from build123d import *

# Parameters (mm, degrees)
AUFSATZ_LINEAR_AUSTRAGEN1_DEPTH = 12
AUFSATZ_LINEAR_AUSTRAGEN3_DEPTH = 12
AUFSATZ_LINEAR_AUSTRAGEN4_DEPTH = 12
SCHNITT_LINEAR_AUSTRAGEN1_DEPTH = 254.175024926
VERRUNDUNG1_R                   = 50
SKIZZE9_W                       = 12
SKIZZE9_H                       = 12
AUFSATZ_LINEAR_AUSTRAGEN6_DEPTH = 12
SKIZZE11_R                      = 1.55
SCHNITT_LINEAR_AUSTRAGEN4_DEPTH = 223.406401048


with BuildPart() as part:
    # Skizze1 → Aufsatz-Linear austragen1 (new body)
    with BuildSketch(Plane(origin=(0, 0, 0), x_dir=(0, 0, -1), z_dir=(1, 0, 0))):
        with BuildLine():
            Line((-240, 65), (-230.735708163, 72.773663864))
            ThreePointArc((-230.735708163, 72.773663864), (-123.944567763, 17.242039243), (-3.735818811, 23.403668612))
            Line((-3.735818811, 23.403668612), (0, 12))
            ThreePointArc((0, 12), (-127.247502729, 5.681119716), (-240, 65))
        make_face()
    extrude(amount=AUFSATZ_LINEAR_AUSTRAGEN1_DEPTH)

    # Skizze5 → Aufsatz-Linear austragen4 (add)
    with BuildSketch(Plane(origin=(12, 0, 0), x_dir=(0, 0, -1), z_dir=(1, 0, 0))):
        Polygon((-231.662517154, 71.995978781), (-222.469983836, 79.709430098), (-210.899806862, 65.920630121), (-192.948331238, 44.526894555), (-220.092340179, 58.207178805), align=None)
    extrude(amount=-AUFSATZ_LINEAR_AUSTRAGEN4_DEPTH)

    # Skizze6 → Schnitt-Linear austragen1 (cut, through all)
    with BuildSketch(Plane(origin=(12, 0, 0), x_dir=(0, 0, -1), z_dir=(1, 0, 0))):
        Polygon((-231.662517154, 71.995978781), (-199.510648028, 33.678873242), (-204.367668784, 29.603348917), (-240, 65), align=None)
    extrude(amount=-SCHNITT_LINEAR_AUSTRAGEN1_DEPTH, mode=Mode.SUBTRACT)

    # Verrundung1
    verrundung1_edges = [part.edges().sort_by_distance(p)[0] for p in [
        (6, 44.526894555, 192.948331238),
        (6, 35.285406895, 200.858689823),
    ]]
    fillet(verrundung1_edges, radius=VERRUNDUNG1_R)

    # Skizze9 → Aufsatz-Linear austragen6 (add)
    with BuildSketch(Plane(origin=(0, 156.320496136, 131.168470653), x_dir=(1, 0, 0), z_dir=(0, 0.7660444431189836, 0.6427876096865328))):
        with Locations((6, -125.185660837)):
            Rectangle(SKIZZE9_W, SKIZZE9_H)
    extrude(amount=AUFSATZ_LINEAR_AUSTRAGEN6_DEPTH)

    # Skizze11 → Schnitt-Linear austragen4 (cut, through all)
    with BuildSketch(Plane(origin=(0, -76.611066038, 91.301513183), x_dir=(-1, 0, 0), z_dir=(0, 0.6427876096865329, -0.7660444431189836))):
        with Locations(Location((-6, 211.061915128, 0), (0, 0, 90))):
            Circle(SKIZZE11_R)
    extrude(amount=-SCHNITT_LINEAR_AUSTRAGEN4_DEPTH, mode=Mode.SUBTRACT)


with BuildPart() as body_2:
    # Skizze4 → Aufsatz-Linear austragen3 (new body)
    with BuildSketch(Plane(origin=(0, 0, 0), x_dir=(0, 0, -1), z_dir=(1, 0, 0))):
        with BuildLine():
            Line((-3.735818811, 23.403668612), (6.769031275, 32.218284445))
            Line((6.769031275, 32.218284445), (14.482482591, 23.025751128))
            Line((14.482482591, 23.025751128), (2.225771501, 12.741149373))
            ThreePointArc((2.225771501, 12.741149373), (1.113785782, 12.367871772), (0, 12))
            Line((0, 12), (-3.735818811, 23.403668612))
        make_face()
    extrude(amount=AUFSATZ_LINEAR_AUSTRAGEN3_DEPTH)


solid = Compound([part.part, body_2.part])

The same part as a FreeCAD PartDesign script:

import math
import FreeCAD as App
import Part
import Sketcher
from FreeCAD import Vector
Q = App.Units.Quantity


def edges_at(feature, points):
    """Names of the edges that pass closest to the given points."""
    edges = feature.Shape.Edges
    near = lambda p: min(range(len(edges)), key=lambda i: edges[i].distToShape(Part.Vertex(*p))[0])
    return sorted({f"Edge{near(p) + 1}" for p in points})


def add_polygon(sketch, points):
    """Adds a closed chain of lines whose ends are joined by coincident constraints."""
    first, n = sketch.GeometryCount, len(points)
    for a, b in zip(points, points[1:] + points[:1]):
        sketch.addGeometry(Part.LineSegment(App.Vector(*a, 0), App.Vector(*b, 0)), False)
    for i in range(n):
        sketch.addConstraint(Sketcher.Constraint("Coincident", first + i, 2, first + (i + 1) % n, 1))

doc = App.newDocument("Part")
body = doc.addObject("PartDesign::Body", "Body")

sketch1 = body.newObject("Sketcher::SketchObject", "Sketch")
sketch1.AttachmentSupport = (doc.getObject("YZ_Plane"), [""])
sketch1.MapMode = "FlatFace"
sketch1.addGeometry([
    Part.LineSegment(Vector(73, 231, 0), Vector(65, 240, 0)),
    Part.ArcOfCircle(Part.Circle(Vector(241, 75, 0), Vector(0, 0, 1), 241), math.radians(137), math.radians(198)),
    Part.LineSegment(Vector(12, 0, 0), Vector(23, 4, 0)),
    Part.ArcOfCircle(Part.Circle(Vector(241, 75, 0), Vector(0, 0, 1), 229), math.radians(137), math.radians(198)),
], False)
sketch1.addConstraint([
    Sketcher.Constraint("Coincident", 0, 2, 1, 1),
    Sketcher.Constraint("Coincident", 1, 2, 2, 1),
    Sketcher.Constraint("Coincident", 2, 2, 3, 2),
    Sketcher.Constraint("Coincident", 3, 1, 0, 1),
    Sketcher.Constraint("Coincident", 3, 3, 1, 3),
    Sketcher.Constraint("PointOnObject", 1, 2, -1),
    Sketcher.Constraint("Angle", 0, Q("130 deg")),
    Sketcher.Constraint("Distance", 2, Q("12 mm")),
    Sketcher.Constraint("DistanceX", -1, 1, 0, 2, Q("65 mm")),
    Sketcher.Constraint("DistanceY", -1, 1, 0, 2, Q("240 mm")),
    Sketcher.Constraint("DistanceX", -1, 1, 1, 2, Q("12 mm")),
    Sketcher.Constraint("Radius", 1, Q("241.476472 mm")),
    Sketcher.Constraint("DistanceX", -1, 1, 2, 2, Q("23.403669 mm")),
])
pad1 = body.newObject("PartDesign::Pad", "Pad")
pad1.Profile = sketch1
pad1.Length = 12

sketch2 = body.newObject("Sketcher::SketchObject", "Sketch001")
sketch2.AttachmentSupport = (doc.getObject("YZ_Plane"), [""])
sketch2.MapMode = "FlatFace"
sketch2.AttachmentOffset = App.Placement(Vector(0, 0, 12), App.Rotation())
add_polygon(sketch2, [(80, 222), (72, 232), (58, 220), (45, 193), (66, 211)])
sketch2.addConstraint([
    Sketcher.Constraint("Perpendicular", 0, 1),
    Sketcher.Constraint("Parallel", 1, 3),
    Sketcher.Constraint("Parallel", 3, 4),
    Sketcher.Constraint("Equal", 1, 4),
    Sketcher.Constraint("Angle", 0, Q("130 deg")),
    Sketcher.Constraint("Distance", 0, Q("12 mm")),
    Sketcher.Constraint("Distance", 1, Q("18 mm")),
    Sketcher.Constraint("Distance", 3, Q("27.927538 mm")),
    Sketcher.Constraint("DistanceX", -1, 1, 0, 2, Q("71.995979 mm")),
    Sketcher.Constraint("DistanceY", -1, 1, 1, 2, Q("220.09234 mm")),
])
pad2 = body.newObject("PartDesign::Pad", "Pad001")
pad2.Profile = sketch2
pad2.Length = 12
pad2.Reversed = True

sketch3 = body.newObject("Sketcher::SketchObject", "Sketch002")
sketch3.AttachmentSupport = (doc.getObject("YZ_Plane"), [""])
sketch3.MapMode = "FlatFace"
sketch3.AttachmentOffset = App.Placement(Vector(0, 0, 12), App.Rotation())
add_polygon(sketch3, [(34, 200), (72, 232), (65, 240), (30, 204)])
sketch3.addConstraint([
    Sketcher.Constraint("Perpendicular", 0, 1),
    Sketcher.Constraint("Parallel", 1, 3),
    Sketcher.Constraint("Angle", 0, Q("40 deg")),
    Sketcher.Constraint("DistanceX", -1, 1, 1, 2, Q("65 mm")),
    Sketcher.Constraint("DistanceY", -1, 1, 1, 2, Q("240 mm")),
    Sketcher.Constraint("Distance", 0, Q("50.019429 mm")),
    Sketcher.Constraint("Distance", 1, Q("10.883811 mm")),
    Sketcher.Constraint("Distance", 2, Q("50.225352 mm")),
])
pocket1 = body.newObject("PartDesign::Pocket", "Pocket")
pocket1.Profile = sketch3
pocket1.Type = "ThroughAll"
doc.recompute()

fillet = body.newObject("PartDesign::Fillet", "Fillet")
fillet.Base = (pocket1, edges_at(pocket1, [(6, 44.527, 192.948), (6, 35.285, 200.859)]))
fillet.Radius = 50

sketch4 = body.newObject("Sketcher::SketchObject", "Sketch003")
sketch4.Placement = App.Placement(Vector(0, 156.320496, 131.168471), App.Rotation(Vector(1, 0, 0), Vector(0, 0.64278761, -0.766044443), Vector(0, 0.766044443, 0.64278761), "ZXY"))
add_polygon(sketch4, [(0, -119), (0, -131), (12, -131), (12, -119)])
sketch4.addConstraint([
    Sketcher.Constraint("Vertical", 0),
    Sketcher.Constraint("Horizontal", 1),
    Sketcher.Constraint("Vertical", 2),
    Sketcher.Constraint("Horizontal", 3),
    Sketcher.Constraint("PointOnObject", 0, 2, -2),
    Sketcher.Constraint("Equal", 3, 0),
    Sketcher.Constraint("DistanceX", 1, 1, 1, 2, Q("12 mm")),
    Sketcher.Constraint("DistanceY", 0, 2, -1, 1, Q("131.185661 mm")),
])
pad3 = body.newObject("PartDesign::Pad", "Pad002")
pad3.Profile = sketch4
pad3.Length = 12

sketch5 = body.newObject("Sketcher::SketchObject", "Sketch004")
sketch5.Placement = App.Placement(Vector(0, -76.611066, 91.301513), App.Rotation(Vector(-1, 0, 0), Vector(0, 0.766044443, 0.64278761), Vector(0, 0.64278761, -0.766044443), "ZXY"))
sketch5.addGeometry(Part.Circle(Vector(-6, 211.1, 0), Vector(0, 0, 1), 1.6), False)
sketch5.addConstraint([
    Sketcher.Constraint("Diameter", 0, Q("3.1 mm")),
    Sketcher.Constraint("DistanceX", 0, 3, -1, 1, Q("6 mm")),
    Sketcher.Constraint("DistanceY", -1, 1, 0, 3, Q("211.061915 mm")),
])
pocket2 = body.newObject("PartDesign::Pocket", "Pocket001")
pocket2.Profile = sketch5
pocket2.Type = "ThroughAll"
body2 = doc.addObject("PartDesign::Body", "Body001")

sketch6 = body2.newObject("Sketcher::SketchObject", "Sketch005")
sketch6.AttachmentSupport = (doc.getObject("YZ_Plane001"), [""])
sketch6.MapMode = "FlatFace"
sketch6.addGeometry([
    Part.LineSegment(Vector(32.2, -6.8, 0), Vector(23.4, 3.7, 0)),
    Part.LineSegment(Vector(23.4, 3.7, 0), Vector(12, 0, 0)),
    Part.ArcOfCircle(Part.Circle(Vector(241.5, 75.2, 0), Vector(0, 0, 1), 241.5), math.radians(-161.86), math.radians(-161.3)),
    Part.LineSegment(Vector(12.7, -2.2, 0), Vector(23, -14.5, 0)),
    Part.LineSegment(Vector(23, -14.5, 0), Vector(32.2, -6.8, 0)),
], False)
sketch6.addConstraint([
    Sketcher.Constraint("Coincident", 0, 2, 1, 1),
    Sketcher.Constraint("Coincident", 1, 2, 2, 1),
    Sketcher.Constraint("Coincident", 2, 2, 3, 1),
    Sketcher.Constraint("Coincident", 3, 2, 4, 1),
    Sketcher.Constraint("Coincident", 4, 2, 0, 1),
    Sketcher.Constraint("PointOnObject", 1, 2, -1),
    Sketcher.Constraint("Parallel", 0, 3),
    Sketcher.Constraint("Perpendicular", 3, 4),
    Sketcher.Constraint("Equal", 1, 4),
    Sketcher.Constraint("Angle", 0, Q("130 deg")),
    Sketcher.Constraint("Distance", 1, Q("12 mm")),
    Sketcher.Constraint("Distance", 3, Q("16 mm")),
    Sketcher.Constraint("DistanceX", -1, 1, 1, 2, Q("12 mm")),
    Sketcher.Constraint("Radius", 2, Q("241.476475 mm")),
    Sketcher.Constraint("DistanceY", 2, 2, 2, 3, Q("77.401802 mm")),
    Sketcher.Constraint("DistanceY", -1, 1, 2, 3, Q("75.17603 mm")),
])
pad4 = body2.newObject("PartDesign::Pad", "Pad003")
pad4.Profile = sketch6
pad4.Length = 12

doc.recompute()
